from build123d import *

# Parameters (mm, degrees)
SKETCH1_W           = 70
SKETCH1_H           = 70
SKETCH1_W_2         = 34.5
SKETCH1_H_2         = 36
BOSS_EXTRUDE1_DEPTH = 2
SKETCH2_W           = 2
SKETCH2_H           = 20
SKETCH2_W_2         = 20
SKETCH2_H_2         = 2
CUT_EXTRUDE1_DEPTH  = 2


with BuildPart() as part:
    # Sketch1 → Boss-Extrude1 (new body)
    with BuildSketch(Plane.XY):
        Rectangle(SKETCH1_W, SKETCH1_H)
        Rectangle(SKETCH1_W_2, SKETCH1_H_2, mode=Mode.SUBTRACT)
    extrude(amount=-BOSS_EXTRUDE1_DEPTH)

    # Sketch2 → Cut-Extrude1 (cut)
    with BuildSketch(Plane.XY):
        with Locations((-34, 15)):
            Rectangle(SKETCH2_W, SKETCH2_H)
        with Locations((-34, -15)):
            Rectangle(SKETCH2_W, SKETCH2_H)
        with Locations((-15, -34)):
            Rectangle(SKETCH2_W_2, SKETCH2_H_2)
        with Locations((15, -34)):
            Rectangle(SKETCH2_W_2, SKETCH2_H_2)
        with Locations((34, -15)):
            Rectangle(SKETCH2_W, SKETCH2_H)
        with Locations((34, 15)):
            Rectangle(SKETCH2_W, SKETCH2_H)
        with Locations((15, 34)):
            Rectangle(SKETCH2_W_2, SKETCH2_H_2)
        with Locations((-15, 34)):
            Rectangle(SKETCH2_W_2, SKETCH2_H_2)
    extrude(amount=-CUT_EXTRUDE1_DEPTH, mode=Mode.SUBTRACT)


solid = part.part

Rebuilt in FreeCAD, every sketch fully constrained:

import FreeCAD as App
import Part
import Sketcher

V = App.Vector


def add_polygon(sketch, points):
    """Adds a closed chain of lines whose ends are joined by coincident constraints."""
    first, n = sketch.GeometryCount, len(points)
    for a, b in zip(points, points[1:] + points[:1]):
        sketch.addGeometry(Part.LineSegment(App.Vector(*a, 0), App.Vector(*b, 0)), False)
    for i in range(n):
        sketch.addConstraint(Sketcher.Constraint("Coincident", first + i, 2, first + (i + 1) % n, 1))

doc = App.newDocument("Part")
body = doc.addObject("PartDesign::Body", "Body")

# Sketch on XY plane
sketch1 = body.newObject("Sketcher::SketchObject", "Sketch")
sketch1.AttachmentSupport = (doc.getObject("XY_Plane"), [""])
sketch1.MapMode = "FlatFace"
add_polygon(sketch1, [(-35, 35), (-35, -35), (35, -35), (35, 35)])  # lines 0-3
add_polygon(sketch1, [(17.25, -18), (-17.25, -18), (-17.25, 18), (17.25, 18)])  # lines 4-7
sketch1.addConstraint([
    Sketcher.Constraint("Vertical", 0),
    Sketcher.Constraint("Horizontal", 1),
    Sketcher.Constraint("Vertical", 2),
    Sketcher.Constraint("Horizontal", 3),
    Sketcher.Constraint("Horizontal", 4),
    Sketcher.Constraint("Vertical", 5),
    Sketcher.Constraint("Horizontal", 6),
    Sketcher.Constraint("Vertical", 7),
    Sketcher.Constraint("Symmetric", 0, 2, 2, 2, -1, 1),
    Sketcher.Constraint("Symmetric", 4, 2, 6, 2, -1, 1),
    Sketcher.Constraint("Equal", 3, 0),
    Sketcher.Constraint("DistanceX", 1, 1, 1, 2, 70.0),
    Sketcher.Constraint("DistanceY", 5, 1, 5, 2, 36.0),
    Sketcher.Constraint("DistanceX", 4, 2, 4, 1, 34.5),
])
pad1 = body.newObject("PartDesign::Pad", "Pad")
pad1.Profile = sketch1
pad1.Length = 2
pad1.Reversed = True

# Sketch on XY plane
sketch2 = body.newObject("Sketcher::SketchObject", "Sketch001")
sketch2.AttachmentSupport = (doc.getObject("XY_Plane"), [""])
sketch2.MapMode = "FlatFace"
add_polygon(sketch2, [(-35, 25), (-35, 5), (-33, 5), (-33, 25)])  # lines 0-3
add_polygon(sketch2, [(-35, -5), (-35, -25), (-33, -25), (-33, -5)])  # lines 4-7
add_polygon(sketch2, [(-25, -33), (-25, -35), (-5, -35), (-5, -33)])  # lines 8-11
add_polygon(sketch2, [(5, -33), (5, -35), (25, -35), (25, -33)])  # lines 12-15
add_polygon(sketch2, [(33, -5), (33, -25), (35, -25), (35, -5)])  # lines 16-19
add_polygon(sketch2, [(33, 25), (33, 5), (35, 5), (35, 25)])  # lines 20-23
add_polygon(sketch2, [(5, 35), (5, 33), (25, 33), (25, 35)])  # lines 24-27
add_polygon(sketch2, [(-25, 35), (-25, 33), (-5, 33), (-5, 35)])  # lines 28-31
sketch2.addConstraint([
    Sketcher.Constraint("Vertical", 0),
    Sketcher.Constraint("Horizontal", 1),
    Sketcher.Constraint("Vertical", 2),
    Sketcher.Constraint("Horizontal", 3),
    Sketcher.Constraint("Vertical", 4),
    Sketcher.Constraint("Horizontal", 5),
    Sketcher.Constraint("Vertical", 6),
    Sketcher.Constraint("Horizontal", 7),
    Sketcher.Constraint("Vertical", 8),
    Sketcher.Constraint("Horizontal", 9),
    Sketcher.Constraint("Vertical", 10),
    Sketcher.Constraint("Horizontal", 11),
    Sketcher.Constraint("Vertical", 12),
    Sketcher.Constraint("Horizontal", 13),
    Sketcher.Constraint("Vertical", 14),
    Sketcher.Constraint("Horizontal", 15),
    Sketcher.Constraint("Vertical", 16),
    Sketcher.Constraint("Horizontal", 17),
    Sketcher.Constraint("Vertical", 18),
    Sketcher.Constraint("Horizontal", 19),
    Sketcher.Constraint("Vertical", 20),
    Sketcher.Constraint("Horizontal", 21),
    Sketcher.Constraint("Vertical", 22),
    Sketcher.Constraint("Horizontal", 23),
    Sketcher.Constraint("Vertical", 24),
    Sketcher.Constraint("Horizontal", 25),
    Sketcher.Constraint("Vertical", 26),
    Sketcher.Constraint("Horizontal", 27),
    Sketcher.Constraint("Vertical", 28),
    Sketcher.Constraint("Horizontal", 29),
    Sketcher.Constraint("Vertical", 30),
    Sketcher.Constraint("Horizontal", 31),
    Sketcher.Constraint("Symmetric", 2, 2, 16, 2, -1, 1),
    Sketcher.Constraint("Symmetric", 0, 2, 18, 2, -1, 1),
    Sketcher.Constraint("Symmetric", 6, 2, 20, 2, -1, 1),
    Sketcher.Constraint("Symmetric", 4, 2, 22, 2, -1, 1),
    Sketcher.Constraint("Symmetric", 10, 2, 24, 2, -1, 1),
    Sketcher.Constraint("Symmetric", 8, 2, 26, 2, -1, 1),
    Sketcher.Constraint("Symmetric", 14, 2, 28, 2, -1, 1),
    Sketcher.Constraint("Symmetric", 12, 2, 30, 2, -1, 1),
    Sketcher.Constraint("Symmetric", 9, 2, 12, 2, -2),
    Sketcher.Constraint("Symmetric", 11, 2, 14, 2, -2),
    Sketcher.Constraint("Symmetric", 5, 2, 16, 2, -2),
    Sketcher.Constraint("Symmetric", 7, 2, 18, 2, -2),
    Sketcher.Constraint("Equal", 31, 0),
    Sketcher.Constraint("Equal", 23, 8),
    Sketcher.Constraint("DistanceX", 1, 1, 1, 2, 2.0),
    Sketcher.Constraint("DistanceX", 9, 1, 9, 2, 20.0),
    Sketcher.Constraint("DistanceX", 0, 2, -1, 1, 35.0),
    Sketcher.Constraint("DistanceY", -1, 1, 0, 2, 5.0),
    Sketcher.Constraint("DistanceX", 8, 2, -1, 1, 25.0),
    Sketcher.Constraint("DistanceY", 8, 2, -1, 1, 35.0),
])
pocket1 = body.newObject("PartDesign::Pocket", "Pocket")
pocket1.Profile = sketch2
pocket1.Length = 2

doc.recompute()
